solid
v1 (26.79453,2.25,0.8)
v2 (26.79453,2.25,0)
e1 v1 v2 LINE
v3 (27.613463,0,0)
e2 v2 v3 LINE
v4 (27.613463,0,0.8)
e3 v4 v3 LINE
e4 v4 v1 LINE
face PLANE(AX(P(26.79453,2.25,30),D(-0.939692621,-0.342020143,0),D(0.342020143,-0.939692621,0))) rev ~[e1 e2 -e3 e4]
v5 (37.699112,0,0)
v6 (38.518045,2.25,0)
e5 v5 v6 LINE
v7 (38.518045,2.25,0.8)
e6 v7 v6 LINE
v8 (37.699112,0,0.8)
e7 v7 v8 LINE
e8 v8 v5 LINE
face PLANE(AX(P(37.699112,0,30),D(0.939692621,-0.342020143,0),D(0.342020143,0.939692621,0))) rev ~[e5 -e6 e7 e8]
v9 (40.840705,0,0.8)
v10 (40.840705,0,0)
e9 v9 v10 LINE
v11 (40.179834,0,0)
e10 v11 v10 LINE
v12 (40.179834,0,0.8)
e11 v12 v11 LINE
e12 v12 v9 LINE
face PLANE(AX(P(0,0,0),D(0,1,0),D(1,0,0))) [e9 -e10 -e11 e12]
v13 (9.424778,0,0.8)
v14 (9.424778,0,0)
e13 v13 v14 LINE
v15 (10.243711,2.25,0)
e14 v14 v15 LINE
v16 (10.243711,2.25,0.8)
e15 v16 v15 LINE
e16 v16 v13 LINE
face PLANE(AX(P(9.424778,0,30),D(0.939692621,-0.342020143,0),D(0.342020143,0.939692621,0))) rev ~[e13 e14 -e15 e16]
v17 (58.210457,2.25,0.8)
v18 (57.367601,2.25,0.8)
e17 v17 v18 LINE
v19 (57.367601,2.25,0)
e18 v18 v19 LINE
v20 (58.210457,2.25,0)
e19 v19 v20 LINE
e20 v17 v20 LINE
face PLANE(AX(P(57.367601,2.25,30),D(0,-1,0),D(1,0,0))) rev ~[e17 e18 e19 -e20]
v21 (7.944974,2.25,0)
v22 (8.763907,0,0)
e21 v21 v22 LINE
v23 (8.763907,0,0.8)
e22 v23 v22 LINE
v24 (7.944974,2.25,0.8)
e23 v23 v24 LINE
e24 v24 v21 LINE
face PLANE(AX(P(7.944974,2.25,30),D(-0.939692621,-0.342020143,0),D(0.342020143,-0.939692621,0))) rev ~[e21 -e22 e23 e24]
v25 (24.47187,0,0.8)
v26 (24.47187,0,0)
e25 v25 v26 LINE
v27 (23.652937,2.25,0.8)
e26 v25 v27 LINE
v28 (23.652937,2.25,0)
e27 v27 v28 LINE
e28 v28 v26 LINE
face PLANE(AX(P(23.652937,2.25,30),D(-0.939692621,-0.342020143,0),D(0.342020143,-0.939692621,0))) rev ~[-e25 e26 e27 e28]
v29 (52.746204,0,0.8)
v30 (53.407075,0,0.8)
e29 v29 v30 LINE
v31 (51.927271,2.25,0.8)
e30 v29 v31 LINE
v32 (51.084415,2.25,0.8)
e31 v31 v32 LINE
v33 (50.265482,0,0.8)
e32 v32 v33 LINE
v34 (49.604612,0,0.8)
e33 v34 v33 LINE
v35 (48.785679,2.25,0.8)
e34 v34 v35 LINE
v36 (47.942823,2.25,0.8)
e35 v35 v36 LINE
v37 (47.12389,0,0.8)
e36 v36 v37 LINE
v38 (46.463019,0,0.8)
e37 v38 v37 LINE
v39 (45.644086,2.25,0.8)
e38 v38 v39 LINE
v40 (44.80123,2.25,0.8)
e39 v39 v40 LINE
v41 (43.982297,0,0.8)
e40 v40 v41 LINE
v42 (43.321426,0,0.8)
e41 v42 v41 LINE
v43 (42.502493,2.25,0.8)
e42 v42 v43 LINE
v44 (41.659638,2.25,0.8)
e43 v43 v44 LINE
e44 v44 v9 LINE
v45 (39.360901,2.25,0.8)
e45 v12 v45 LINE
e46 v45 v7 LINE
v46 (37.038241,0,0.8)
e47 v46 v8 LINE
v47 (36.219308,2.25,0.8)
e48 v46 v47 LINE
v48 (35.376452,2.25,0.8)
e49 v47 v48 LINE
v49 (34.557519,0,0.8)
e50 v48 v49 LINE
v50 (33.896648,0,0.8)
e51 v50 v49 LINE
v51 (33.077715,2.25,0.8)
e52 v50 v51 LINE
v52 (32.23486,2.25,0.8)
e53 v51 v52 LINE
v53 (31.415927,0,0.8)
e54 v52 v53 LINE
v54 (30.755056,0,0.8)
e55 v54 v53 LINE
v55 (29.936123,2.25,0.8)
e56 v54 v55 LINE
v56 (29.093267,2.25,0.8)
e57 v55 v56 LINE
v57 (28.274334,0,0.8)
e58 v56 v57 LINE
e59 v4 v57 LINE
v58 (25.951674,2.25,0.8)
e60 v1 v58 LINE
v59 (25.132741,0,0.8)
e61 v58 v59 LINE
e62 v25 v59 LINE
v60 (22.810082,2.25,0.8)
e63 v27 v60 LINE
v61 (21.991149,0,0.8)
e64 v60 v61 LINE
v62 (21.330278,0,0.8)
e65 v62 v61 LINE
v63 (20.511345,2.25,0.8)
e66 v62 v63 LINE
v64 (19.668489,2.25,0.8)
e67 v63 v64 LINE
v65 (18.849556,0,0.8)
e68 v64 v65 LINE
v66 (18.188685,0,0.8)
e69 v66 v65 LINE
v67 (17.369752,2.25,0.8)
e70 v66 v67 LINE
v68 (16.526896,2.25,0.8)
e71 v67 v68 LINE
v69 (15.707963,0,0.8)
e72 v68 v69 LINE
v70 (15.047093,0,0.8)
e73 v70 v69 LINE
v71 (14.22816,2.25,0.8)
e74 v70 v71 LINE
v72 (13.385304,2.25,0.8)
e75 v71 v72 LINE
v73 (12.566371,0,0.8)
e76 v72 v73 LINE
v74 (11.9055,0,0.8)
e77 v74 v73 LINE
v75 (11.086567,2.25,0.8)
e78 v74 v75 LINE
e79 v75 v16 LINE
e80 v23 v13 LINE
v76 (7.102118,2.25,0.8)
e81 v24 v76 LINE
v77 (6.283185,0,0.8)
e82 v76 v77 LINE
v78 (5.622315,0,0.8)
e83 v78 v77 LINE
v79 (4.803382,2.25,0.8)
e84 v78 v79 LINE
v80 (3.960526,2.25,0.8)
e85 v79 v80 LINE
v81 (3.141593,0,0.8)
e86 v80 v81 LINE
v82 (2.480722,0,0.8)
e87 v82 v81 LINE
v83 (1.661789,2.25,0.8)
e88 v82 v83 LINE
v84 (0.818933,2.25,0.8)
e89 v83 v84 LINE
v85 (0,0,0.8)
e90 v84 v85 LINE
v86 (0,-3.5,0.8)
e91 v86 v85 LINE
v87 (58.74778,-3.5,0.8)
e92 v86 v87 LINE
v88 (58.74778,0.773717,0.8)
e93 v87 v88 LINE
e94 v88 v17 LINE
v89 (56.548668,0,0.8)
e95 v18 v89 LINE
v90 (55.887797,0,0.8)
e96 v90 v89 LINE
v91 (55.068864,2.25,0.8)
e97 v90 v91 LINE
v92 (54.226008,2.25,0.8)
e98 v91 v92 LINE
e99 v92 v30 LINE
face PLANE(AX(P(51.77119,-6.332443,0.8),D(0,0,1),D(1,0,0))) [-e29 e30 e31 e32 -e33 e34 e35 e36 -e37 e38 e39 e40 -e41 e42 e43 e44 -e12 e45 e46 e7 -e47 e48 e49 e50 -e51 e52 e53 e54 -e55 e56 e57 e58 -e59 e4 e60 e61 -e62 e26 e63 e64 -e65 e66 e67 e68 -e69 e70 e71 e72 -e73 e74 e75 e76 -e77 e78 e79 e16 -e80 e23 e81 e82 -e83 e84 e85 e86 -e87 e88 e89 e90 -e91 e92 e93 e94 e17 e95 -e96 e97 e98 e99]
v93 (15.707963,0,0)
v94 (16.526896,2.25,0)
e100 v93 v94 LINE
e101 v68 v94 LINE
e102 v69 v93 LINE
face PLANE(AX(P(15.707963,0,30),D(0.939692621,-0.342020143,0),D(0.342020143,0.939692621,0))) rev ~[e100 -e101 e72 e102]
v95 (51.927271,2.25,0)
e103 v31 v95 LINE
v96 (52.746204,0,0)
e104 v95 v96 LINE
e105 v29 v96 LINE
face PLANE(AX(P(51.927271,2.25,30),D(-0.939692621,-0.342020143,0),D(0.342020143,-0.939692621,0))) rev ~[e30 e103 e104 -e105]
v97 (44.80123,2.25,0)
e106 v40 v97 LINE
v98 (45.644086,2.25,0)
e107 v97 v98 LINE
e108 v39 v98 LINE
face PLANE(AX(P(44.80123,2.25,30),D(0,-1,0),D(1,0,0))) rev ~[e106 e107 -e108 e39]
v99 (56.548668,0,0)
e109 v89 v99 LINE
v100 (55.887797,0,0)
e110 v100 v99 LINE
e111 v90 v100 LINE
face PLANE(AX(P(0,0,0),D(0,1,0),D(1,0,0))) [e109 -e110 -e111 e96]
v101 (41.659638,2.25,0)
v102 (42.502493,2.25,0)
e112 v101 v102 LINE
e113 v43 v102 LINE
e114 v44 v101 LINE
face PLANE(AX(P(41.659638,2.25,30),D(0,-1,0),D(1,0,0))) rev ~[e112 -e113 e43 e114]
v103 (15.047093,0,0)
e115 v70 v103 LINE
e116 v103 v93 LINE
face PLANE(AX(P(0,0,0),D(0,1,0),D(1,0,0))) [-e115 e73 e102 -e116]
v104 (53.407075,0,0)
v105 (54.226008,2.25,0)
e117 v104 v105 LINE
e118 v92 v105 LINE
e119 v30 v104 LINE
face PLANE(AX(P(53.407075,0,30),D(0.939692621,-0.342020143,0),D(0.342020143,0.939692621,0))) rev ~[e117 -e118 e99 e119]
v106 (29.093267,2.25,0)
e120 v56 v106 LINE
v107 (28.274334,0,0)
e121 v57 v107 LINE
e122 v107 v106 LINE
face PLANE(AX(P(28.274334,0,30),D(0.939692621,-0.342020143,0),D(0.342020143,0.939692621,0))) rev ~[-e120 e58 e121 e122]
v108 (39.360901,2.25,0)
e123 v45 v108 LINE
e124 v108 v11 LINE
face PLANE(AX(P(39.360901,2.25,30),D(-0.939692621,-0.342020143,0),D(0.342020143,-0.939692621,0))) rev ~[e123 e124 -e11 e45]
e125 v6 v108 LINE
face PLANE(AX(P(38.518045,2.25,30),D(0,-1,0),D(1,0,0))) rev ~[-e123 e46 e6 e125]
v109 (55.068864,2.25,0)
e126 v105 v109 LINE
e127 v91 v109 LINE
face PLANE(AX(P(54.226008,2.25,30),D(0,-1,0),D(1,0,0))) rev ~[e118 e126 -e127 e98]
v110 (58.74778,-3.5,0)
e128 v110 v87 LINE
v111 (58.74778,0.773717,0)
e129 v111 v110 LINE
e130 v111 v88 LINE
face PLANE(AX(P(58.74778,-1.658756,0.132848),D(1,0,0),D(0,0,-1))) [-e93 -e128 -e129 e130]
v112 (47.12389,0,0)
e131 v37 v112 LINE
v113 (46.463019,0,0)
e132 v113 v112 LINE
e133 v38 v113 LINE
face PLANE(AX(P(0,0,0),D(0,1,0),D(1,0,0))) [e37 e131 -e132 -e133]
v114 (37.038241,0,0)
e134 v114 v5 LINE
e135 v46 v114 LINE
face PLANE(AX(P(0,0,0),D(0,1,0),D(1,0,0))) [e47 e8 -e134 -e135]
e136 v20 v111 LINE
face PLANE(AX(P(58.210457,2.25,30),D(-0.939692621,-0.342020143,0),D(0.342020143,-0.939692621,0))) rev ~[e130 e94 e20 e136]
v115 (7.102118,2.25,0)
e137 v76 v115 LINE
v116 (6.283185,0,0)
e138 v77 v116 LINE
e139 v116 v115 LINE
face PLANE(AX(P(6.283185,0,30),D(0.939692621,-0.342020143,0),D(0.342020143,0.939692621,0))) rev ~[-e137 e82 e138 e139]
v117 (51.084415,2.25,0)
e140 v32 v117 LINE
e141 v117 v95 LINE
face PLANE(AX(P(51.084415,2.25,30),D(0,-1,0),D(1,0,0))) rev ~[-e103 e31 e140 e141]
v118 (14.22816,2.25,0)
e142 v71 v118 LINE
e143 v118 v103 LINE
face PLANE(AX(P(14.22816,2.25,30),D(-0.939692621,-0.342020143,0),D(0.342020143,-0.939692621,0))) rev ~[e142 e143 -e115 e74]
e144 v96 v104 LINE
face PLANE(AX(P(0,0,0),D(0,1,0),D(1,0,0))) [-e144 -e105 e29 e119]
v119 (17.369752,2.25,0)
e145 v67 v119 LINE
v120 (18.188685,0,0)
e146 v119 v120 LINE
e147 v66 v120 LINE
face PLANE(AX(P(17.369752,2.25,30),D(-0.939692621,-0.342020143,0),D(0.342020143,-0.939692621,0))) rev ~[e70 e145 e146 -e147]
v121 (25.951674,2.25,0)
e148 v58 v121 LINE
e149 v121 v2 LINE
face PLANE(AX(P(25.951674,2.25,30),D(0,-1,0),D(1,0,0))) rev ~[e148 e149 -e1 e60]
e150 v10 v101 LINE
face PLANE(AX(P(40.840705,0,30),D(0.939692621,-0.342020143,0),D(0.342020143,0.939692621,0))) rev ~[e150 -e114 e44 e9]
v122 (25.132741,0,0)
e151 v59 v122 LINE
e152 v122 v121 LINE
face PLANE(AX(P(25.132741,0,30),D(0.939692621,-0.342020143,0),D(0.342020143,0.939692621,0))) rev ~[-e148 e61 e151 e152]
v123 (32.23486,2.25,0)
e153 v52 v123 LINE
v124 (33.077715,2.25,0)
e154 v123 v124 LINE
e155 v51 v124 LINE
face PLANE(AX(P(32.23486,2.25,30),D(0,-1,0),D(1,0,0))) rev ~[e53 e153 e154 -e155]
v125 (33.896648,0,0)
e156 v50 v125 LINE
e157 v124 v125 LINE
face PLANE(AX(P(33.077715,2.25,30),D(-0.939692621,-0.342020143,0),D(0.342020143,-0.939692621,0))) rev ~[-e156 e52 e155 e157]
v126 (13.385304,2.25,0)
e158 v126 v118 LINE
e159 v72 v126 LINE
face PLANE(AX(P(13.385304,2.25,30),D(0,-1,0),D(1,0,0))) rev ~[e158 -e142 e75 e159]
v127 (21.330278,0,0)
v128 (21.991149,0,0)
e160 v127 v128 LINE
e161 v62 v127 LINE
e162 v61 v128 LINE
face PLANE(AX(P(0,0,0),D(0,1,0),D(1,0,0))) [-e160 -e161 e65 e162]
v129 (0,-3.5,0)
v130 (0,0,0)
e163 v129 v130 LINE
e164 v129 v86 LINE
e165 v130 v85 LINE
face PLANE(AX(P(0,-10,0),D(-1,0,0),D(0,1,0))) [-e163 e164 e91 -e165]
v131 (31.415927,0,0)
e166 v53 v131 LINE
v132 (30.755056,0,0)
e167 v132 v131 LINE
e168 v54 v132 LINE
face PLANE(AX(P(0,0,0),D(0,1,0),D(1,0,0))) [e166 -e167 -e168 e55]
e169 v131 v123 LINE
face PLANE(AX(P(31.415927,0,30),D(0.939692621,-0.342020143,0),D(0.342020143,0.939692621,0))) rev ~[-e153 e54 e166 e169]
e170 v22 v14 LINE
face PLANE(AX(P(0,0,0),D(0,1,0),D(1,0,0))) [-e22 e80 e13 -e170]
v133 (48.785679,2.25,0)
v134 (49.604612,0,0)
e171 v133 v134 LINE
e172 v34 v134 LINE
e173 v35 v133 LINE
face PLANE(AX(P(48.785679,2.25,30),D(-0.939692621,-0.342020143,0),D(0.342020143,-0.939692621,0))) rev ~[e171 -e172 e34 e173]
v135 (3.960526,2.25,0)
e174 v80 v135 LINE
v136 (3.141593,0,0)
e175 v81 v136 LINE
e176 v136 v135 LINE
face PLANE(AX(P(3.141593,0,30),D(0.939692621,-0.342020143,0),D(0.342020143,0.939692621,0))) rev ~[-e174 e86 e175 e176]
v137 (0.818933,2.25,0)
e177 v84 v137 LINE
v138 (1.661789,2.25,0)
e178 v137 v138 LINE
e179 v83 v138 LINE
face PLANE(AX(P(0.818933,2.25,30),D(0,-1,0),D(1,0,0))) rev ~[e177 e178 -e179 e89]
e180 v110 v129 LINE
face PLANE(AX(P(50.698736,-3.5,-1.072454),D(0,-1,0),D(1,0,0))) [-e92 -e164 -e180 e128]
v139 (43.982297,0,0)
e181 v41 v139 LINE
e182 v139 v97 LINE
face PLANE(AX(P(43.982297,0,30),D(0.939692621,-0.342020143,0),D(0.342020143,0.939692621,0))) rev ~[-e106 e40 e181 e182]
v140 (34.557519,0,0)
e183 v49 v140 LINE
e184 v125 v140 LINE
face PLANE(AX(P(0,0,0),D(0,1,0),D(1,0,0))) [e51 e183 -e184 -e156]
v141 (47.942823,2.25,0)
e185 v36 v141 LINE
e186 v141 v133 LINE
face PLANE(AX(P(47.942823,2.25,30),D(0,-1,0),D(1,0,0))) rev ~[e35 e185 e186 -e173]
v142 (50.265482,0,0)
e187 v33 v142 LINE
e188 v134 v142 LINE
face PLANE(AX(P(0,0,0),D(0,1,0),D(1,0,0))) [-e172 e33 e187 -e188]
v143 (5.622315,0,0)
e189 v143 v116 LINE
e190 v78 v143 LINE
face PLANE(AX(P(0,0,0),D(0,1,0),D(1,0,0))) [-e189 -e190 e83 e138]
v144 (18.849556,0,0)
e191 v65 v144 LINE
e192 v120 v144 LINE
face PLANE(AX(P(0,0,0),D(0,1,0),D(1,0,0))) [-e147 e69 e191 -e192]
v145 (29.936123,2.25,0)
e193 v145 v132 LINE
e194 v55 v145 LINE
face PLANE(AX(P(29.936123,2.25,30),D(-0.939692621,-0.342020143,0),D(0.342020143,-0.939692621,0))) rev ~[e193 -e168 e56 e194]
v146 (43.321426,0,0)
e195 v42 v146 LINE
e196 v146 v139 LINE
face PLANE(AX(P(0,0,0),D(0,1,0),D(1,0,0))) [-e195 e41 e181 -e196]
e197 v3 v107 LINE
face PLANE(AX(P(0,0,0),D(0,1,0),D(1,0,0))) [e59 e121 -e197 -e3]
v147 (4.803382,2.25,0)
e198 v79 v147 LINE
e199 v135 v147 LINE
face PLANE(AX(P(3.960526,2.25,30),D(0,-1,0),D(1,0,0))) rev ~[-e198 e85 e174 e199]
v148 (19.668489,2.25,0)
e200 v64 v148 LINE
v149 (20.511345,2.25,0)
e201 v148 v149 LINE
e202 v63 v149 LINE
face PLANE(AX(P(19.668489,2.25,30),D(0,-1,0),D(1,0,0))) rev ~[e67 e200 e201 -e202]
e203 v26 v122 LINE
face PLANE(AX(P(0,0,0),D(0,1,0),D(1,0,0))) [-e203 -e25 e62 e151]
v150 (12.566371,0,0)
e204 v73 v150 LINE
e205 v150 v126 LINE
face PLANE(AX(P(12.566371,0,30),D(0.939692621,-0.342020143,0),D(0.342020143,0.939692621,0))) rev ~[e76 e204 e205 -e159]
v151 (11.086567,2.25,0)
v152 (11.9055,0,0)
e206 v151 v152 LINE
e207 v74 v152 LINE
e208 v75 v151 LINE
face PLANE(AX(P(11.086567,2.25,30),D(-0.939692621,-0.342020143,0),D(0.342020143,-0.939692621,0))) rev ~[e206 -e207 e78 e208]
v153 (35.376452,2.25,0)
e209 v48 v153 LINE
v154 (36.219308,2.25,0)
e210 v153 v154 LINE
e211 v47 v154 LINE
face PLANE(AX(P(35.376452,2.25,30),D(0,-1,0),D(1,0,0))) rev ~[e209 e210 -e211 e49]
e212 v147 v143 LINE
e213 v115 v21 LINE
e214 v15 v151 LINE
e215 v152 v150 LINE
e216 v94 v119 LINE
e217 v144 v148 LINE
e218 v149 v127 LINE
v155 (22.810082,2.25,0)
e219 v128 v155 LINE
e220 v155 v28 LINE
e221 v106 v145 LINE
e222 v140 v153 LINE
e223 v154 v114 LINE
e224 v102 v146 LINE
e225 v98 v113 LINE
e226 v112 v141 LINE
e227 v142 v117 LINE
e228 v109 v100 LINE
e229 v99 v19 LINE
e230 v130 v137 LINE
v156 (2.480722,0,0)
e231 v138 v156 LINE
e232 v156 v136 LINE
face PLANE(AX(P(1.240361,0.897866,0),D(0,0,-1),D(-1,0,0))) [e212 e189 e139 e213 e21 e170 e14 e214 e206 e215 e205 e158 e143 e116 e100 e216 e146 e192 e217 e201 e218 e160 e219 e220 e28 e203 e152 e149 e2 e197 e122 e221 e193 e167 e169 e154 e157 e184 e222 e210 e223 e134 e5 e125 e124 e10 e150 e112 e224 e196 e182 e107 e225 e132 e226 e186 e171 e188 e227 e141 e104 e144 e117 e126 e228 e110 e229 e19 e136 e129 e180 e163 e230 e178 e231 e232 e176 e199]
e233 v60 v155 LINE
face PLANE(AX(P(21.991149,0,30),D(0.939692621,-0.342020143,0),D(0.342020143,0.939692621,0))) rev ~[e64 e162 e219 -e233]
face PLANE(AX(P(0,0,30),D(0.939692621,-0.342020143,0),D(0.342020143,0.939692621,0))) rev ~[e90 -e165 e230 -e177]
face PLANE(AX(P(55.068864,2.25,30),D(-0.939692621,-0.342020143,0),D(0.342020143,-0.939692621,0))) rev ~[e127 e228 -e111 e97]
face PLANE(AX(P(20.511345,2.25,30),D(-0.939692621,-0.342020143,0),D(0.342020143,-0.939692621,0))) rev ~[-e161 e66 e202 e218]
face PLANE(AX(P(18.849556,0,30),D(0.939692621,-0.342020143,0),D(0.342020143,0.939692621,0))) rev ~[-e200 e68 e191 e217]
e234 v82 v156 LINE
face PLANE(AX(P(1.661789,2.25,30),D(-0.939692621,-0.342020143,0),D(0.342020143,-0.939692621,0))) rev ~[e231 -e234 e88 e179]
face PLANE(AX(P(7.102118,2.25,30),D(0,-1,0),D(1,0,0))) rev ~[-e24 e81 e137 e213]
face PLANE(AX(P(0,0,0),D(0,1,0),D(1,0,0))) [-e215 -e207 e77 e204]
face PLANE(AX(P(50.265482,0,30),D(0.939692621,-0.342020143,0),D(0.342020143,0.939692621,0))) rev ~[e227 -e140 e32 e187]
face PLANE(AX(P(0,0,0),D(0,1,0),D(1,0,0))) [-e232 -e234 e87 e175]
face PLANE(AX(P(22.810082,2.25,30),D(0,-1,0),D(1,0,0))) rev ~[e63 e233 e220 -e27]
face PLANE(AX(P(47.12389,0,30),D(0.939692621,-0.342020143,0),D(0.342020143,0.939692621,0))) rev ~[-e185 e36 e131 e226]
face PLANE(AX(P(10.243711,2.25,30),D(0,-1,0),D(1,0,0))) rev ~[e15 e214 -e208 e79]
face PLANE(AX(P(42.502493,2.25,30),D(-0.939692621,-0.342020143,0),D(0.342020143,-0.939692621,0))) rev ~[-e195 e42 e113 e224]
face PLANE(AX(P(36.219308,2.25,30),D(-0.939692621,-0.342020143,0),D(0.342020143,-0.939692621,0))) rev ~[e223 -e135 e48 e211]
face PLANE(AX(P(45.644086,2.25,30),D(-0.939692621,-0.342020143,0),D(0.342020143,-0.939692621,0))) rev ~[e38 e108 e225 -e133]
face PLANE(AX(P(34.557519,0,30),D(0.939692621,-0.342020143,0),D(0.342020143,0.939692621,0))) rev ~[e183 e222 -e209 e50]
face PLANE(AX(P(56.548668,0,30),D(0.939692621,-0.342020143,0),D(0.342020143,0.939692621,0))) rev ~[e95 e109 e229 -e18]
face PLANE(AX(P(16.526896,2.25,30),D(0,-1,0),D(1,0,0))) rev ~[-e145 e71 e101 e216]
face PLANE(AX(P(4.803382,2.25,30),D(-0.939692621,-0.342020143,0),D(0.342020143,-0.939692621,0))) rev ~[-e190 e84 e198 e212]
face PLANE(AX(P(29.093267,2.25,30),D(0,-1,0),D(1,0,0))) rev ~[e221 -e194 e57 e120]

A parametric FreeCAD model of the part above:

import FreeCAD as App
import Part
import Sketcher

V = App.Vector
Q = App.Units.Quantity


def add_polygon(sketch, points):
    """Adds a closed chain of lines whose ends are joined by coincident constraints."""
    first, n = sketch.GeometryCount, len(points)
    for a, b in zip(points, points[1:] + points[:1]):
        sketch.addGeometry(Part.LineSegment(App.Vector(*a, 0), App.Vector(*b, 0)), False)
    for i in range(n):
        sketch.addConstraint(Sketcher.Constraint("Coincident", first + i, 2, first + (i + 1) % n, 1))

doc = App.newDocument("Part")
body = doc.addObject("PartDesign::Body", "Body")

# Sketch on XY plane
sketch1 = body.newObject("Sketcher::SketchObject", "Sketch")
sketch1.AttachmentSupport = (doc.getObject("XY_Plane"), [""])
sketch1.MapMode = "FlatFace"
add_polygon(sketch1, [(0, 0), (0, -10), (94, -10), (94, 0)])  # lines 0-3
sketch1.addConstraint(Sketcher.Constraint("Vertical", 0))
sketch1.addConstraint(Sketcher.Constraint("Horizontal", 1))
sketch1.addConstraint(Sketcher.Constraint("Vertical", 2))
sketch1.addConstraint(Sketcher.Constraint("Horizontal", 3))
sketch1.addConstraint(Sketcher.Constraint("Coincident", 3, 2, -1, 1))
sketch1.addConstraint(Sketcher.Constraint("DistanceY", 0, 2, 0, 1, 10.0))
sketch1.addConstraint(Sketcher.Constraint("DistanceX", 1, 1, 1, 2, 94.24778))
pad1 = body.newObject("PartDesign::Pad", "Pad")
pad1.Profile = sketch1
pad1.Length = 30

# Sketch on XY plane
sketch2 = body.newObject("Sketcher::SketchObject", "Sketch001")
sketch2.AttachmentSupport = (doc.getObject("XY_Plane"), [""])
sketch2.MapMode = "FlatFace"
sketch2.AttachmentOffset = App.Placement(V(0, 0, 30), App.Rotation())
add_polygon(sketch2, [(0.8, 2.2), (0, 0), (2.5, 0), (1.7, 2.2)])  # lines 0-3
sketch2.addConstraint(Sketcher.Constraint("Horizontal", 1))
sketch2.addConstraint(Sketcher.Constraint("Horizontal", 3))
sketch2.addConstraint(Sketcher.Constraint("Coincident", 0, 2, -1, 1))
sketch2.addConstraint(Sketcher.Constraint("Equal", 0, 2))
sketch2.addConstraint(Sketcher.Constraint("Angle", 0, Q("-110 deg")))
sketch2.addConstraint(Sketcher.Constraint("DistanceY", -1, 1, 2, 2, 2.25))
sketch2.addConstraint(Sketcher.Constraint("DistanceX", 1, 1, 1, 2, 2.480722))
pad2 = body.newObject("PartDesign::Pad", "Pad001")
pad2.Profile = sketch2
pad2.Length = 30
pad2.Reversed = True
doc.recompute()

linearpattern = body.newObject("PartDesign::LinearPattern", "LinearPattern")
linearpattern.Originals = [pad2]
linearpattern.Direction = (doc.getObject("X_Axis"), [""])
linearpattern.Mode = "offset"
linearpattern.Offset = 3.141593
linearpattern.Occurrences = 30
body.Tip = linearpattern

# Sketch on XY plane
sketch3 = body.newObject("Sketcher::SketchObject", "Sketch002")
sketch3.AttachmentSupport = (doc.getObject("XY_Plane"), [""])
sketch3.MapMode = "FlatFace"
sketch3.AttachmentOffset = App.Placement(V(0, 0, 30), App.Rotation())
add_polygon(sketch3, [(-12, 18), (-12, -30), (116, -30), (116, 18)])  # lines 0-3
sketch3.addConstraint(Sketcher.Constraint("Vertical", 0))
sketch3.addConstraint(Sketcher.Constraint("Horizontal", 1))
sketch3.addConstraint(Sketcher.Constraint("Vertical", 2))
sketch3.addConstraint(Sketcher.Constraint("Horizontal", 3))
sketch3.addConstraint(Sketcher.Constraint("DistanceY", 0, 2, 0, 1, 47.772941))
sketch3.addConstraint(Sketcher.Constraint("DistanceX", 1, 1, 1, 2, 127.719495))
sketch3.addConstraint(Sketcher.Constraint("DistanceX", 0, 2, -1, 1, 12.088558))
sketch3.addConstraint(Sketcher.Constraint("DistanceY", 0, 2, -1, 1, 30.218913))
pocket1 = body.newObject("PartDesign::Pocket", "Pocket")
pocket1.Profile = sketch3
pocket1.Length = 29.2

# Sketch on XZ plane
sketch4 = body.newObject("Sketcher::SketchObject", "Sketch003")
sketch4.AttachmentSupport = (doc.getObject("XZ_Plane"), [""])
sketch4.MapMode = "FlatFace"
sketch4.AttachmentOffset = App.Placement(V(0, 0, 10), App.Rotation())
add_polygon(sketch4, [(-8, 20), (-8, -22), (109, -22), (109, 20)])  # lines 0-3
sketch4.addConstraint(Sketcher.Constraint("Vertical", 0))
sketch4.addConstraint(Sketcher.Constraint("Horizontal", 1))
sketch4.addConstraint(Sketcher.Constraint("Vertical", 2))
sketch4.addConstraint(Sketcher.Constraint("Horizontal", 3))
sketch4.addConstraint(Sketcher.Constraint("DistanceX", 1, 1, 1, 2, 116.864963))
sketch4.addConstraint(Sketcher.Constraint("DistanceY", 0, 2, 0, 1, 41.403216))
sketch4.addConstraint(Sketcher.Constraint("DistanceY", 0, 2, -1, 1, 21.774062))
sketch4.addConstraint(Sketcher.Constraint("DistanceX", 0, 2, -1, 1, 7.733746))
pocket2 = body.newObject("PartDesign::Pocket", "Pocket001")
pocket2.Profile = sketch4
pocket2.Length = 6.5

# Sketch on YZ plane
sketch5 = body.newObject("Sketcher::SketchObject", "Sketch004")
sketch5.AttachmentSupport = (doc.getObject("YZ_Plane"), [""])
sketch5.MapMode = "FlatFace"
sketch5.AttachmentOffset = App.Placement(V(0, 0, 94.24778), App.Rotation())
add_polygon(sketch5, [(2, 4), (-6, 4), (-6, -4), (2, -4)])  # lines 0-3
sketch5.addConstraint(Sketcher.Constraint("Horizontal", 0))
sketch5.addConstraint(Sketcher.Constraint("Vertical", 1))
sketch5.addConstraint(Sketcher.Constraint("Horizontal", 2))
sketch5.addConstraint(Sketcher.Constraint("Vertical", 3))
sketch5.addConstraint(Sketcher.Constraint("DistanceX", 0, 2, 0, 1, 8.147499))
sketch5.addConstraint(Sketcher.Constraint("DistanceY", 1, 2, 1, 1, 7.796889))
sketch5.addConstraint(Sketcher.Constraint("DistanceX", 0, 2, -1, 1, 5.732505))
sketch5.addConstraint(Sketcher.Constraint("DistanceY", -1, 1, 0, 2, 4.031293))
pocket3 = body.newObject("PartDesign::Pocket", "Pocket002")
pocket3.Profile = sketch5
pocket3.Length = 35.5

doc.recompute()
